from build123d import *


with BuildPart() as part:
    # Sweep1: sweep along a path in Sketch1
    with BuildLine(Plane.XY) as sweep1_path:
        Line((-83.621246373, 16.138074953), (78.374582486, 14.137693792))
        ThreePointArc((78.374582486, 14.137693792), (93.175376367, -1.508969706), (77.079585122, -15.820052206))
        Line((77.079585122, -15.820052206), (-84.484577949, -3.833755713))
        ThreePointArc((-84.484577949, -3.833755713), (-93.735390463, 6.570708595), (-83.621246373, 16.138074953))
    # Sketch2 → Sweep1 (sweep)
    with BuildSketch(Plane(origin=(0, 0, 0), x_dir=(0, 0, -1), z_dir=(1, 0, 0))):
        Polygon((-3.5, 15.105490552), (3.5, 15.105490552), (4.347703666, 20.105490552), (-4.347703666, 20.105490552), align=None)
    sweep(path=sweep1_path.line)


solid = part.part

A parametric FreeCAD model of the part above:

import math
import FreeCAD as App
import Part
import Sketcher
from FreeCAD import Vector

doc = App.newDocument("Part")
body = doc.addObject("PartDesign::Body", "Body")

sketch1 = doc.addObject("Sketcher::SketchObject", "Sketch")
body.addObject(sketch1)
sketch1.AttachmentSupport = (doc.YZ_Plane, [""])
sketch1.MapMode = "FlatFace"
sketch1.addGeometry([
    Part.LineSegment(Vector(15.105491, 3.5, 0), Vector(15.105491, -3.5, 0)),
    Part.LineSegment(Vector(15.105491, -3.5, 0), Vector(20.105491, -4.347704, 0)),
    Part.LineSegment(Vector(20.105491, -4.347704, 0), Vector(20.105491, 4.347704, 0)),
    Part.LineSegment(Vector(20.105491, 4.347704, 0), Vector(15.105491, 3.5, 0)),
], False)
sketch1.addConstraint([
    Sketcher.Constraint("Coincident", 0, 2, 1, 1),
    Sketcher.Constraint("Coincident", 1, 2, 2, 1),
    Sketcher.Constraint("Coincident", 2, 2, 3, 1),
    Sketcher.Constraint("Coincident", 3, 2, 0, 1),
    Sketcher.Constraint("Vertical", 0),
    Sketcher.Constraint("Vertical", 2),
    Sketcher.Constraint("Equal", 1, 3),
    Sketcher.Constraint("DistanceY", 0, 2, 0, 1, 7.0),
    Sketcher.Constraint("DistanceX", 0, 2, 1, 2, 5.0),
    Sketcher.Constraint("DistanceY", 0, 2, -1, 1, 3.5),
    Sketcher.Constraint("Distance", 1, 5.071351),
    Sketcher.Constraint("DistanceX", -1, 1, 0, 2, 15.105491),
])

sketch2 = doc.addObject("Sketcher::SketchObject", "Sketch001")
body.addObject(sketch2)
sketch2.AttachmentSupport = (doc.XY_Plane, [""])
sketch2.MapMode = "FlatFace"
sketch2.addGeometry([
    Part.LineSegment(Vector(-84, 16, 0), Vector(78, 14, 0)),
    Part.ArcOfCircle(Part.Circle(Vector(78, -1, 0), Vector(0, 0, 1), 15), math.radians(-94), math.radians(89)),
    Part.LineSegment(Vector(77, -16, 0), Vector(-84, -4, 0)),
    Part.ArcOfCircle(Part.Circle(Vector(-84, 6, 0), Vector(0, 0, 1), 10), math.radians(89), math.radians(266)),
], False)
sketch2.addConstraint([
    Sketcher.Constraint("Tangent", 0, 2, 1, 2),
    Sketcher.Constraint("Tangent", 1, 1, 2, 1),
    Sketcher.Constraint("Tangent", 2, 2, 3, 2),
    Sketcher.Constraint("Tangent", 3, 1, 0, 1),
    Sketcher.Constraint("Radius", 1, 15.0),
    Sketcher.Constraint("Radius", 3, 10.0),
    Sketcher.Constraint("DistanceY", 1, 3, 3, 3, 7.0),
    Sketcher.Constraint("Distance", 0, 162.008179),
    Sketcher.Constraint("DistanceX", -1, 1, 1, 3, 78.189371),
    Sketcher.Constraint("DistanceY", 1, 3, -1, 1, 0.861163),
])
doc.recompute()

additivepipe = doc.addObject("PartDesign::AdditivePipe", "AdditivePipe")
body.addObject(additivepipe)
additivepipe.Profile = sketch1
additivepipe.Spine = (sketch2, ["Edge1", "Edge2", "Edge3", "Edge4"])

doc.recompute()
